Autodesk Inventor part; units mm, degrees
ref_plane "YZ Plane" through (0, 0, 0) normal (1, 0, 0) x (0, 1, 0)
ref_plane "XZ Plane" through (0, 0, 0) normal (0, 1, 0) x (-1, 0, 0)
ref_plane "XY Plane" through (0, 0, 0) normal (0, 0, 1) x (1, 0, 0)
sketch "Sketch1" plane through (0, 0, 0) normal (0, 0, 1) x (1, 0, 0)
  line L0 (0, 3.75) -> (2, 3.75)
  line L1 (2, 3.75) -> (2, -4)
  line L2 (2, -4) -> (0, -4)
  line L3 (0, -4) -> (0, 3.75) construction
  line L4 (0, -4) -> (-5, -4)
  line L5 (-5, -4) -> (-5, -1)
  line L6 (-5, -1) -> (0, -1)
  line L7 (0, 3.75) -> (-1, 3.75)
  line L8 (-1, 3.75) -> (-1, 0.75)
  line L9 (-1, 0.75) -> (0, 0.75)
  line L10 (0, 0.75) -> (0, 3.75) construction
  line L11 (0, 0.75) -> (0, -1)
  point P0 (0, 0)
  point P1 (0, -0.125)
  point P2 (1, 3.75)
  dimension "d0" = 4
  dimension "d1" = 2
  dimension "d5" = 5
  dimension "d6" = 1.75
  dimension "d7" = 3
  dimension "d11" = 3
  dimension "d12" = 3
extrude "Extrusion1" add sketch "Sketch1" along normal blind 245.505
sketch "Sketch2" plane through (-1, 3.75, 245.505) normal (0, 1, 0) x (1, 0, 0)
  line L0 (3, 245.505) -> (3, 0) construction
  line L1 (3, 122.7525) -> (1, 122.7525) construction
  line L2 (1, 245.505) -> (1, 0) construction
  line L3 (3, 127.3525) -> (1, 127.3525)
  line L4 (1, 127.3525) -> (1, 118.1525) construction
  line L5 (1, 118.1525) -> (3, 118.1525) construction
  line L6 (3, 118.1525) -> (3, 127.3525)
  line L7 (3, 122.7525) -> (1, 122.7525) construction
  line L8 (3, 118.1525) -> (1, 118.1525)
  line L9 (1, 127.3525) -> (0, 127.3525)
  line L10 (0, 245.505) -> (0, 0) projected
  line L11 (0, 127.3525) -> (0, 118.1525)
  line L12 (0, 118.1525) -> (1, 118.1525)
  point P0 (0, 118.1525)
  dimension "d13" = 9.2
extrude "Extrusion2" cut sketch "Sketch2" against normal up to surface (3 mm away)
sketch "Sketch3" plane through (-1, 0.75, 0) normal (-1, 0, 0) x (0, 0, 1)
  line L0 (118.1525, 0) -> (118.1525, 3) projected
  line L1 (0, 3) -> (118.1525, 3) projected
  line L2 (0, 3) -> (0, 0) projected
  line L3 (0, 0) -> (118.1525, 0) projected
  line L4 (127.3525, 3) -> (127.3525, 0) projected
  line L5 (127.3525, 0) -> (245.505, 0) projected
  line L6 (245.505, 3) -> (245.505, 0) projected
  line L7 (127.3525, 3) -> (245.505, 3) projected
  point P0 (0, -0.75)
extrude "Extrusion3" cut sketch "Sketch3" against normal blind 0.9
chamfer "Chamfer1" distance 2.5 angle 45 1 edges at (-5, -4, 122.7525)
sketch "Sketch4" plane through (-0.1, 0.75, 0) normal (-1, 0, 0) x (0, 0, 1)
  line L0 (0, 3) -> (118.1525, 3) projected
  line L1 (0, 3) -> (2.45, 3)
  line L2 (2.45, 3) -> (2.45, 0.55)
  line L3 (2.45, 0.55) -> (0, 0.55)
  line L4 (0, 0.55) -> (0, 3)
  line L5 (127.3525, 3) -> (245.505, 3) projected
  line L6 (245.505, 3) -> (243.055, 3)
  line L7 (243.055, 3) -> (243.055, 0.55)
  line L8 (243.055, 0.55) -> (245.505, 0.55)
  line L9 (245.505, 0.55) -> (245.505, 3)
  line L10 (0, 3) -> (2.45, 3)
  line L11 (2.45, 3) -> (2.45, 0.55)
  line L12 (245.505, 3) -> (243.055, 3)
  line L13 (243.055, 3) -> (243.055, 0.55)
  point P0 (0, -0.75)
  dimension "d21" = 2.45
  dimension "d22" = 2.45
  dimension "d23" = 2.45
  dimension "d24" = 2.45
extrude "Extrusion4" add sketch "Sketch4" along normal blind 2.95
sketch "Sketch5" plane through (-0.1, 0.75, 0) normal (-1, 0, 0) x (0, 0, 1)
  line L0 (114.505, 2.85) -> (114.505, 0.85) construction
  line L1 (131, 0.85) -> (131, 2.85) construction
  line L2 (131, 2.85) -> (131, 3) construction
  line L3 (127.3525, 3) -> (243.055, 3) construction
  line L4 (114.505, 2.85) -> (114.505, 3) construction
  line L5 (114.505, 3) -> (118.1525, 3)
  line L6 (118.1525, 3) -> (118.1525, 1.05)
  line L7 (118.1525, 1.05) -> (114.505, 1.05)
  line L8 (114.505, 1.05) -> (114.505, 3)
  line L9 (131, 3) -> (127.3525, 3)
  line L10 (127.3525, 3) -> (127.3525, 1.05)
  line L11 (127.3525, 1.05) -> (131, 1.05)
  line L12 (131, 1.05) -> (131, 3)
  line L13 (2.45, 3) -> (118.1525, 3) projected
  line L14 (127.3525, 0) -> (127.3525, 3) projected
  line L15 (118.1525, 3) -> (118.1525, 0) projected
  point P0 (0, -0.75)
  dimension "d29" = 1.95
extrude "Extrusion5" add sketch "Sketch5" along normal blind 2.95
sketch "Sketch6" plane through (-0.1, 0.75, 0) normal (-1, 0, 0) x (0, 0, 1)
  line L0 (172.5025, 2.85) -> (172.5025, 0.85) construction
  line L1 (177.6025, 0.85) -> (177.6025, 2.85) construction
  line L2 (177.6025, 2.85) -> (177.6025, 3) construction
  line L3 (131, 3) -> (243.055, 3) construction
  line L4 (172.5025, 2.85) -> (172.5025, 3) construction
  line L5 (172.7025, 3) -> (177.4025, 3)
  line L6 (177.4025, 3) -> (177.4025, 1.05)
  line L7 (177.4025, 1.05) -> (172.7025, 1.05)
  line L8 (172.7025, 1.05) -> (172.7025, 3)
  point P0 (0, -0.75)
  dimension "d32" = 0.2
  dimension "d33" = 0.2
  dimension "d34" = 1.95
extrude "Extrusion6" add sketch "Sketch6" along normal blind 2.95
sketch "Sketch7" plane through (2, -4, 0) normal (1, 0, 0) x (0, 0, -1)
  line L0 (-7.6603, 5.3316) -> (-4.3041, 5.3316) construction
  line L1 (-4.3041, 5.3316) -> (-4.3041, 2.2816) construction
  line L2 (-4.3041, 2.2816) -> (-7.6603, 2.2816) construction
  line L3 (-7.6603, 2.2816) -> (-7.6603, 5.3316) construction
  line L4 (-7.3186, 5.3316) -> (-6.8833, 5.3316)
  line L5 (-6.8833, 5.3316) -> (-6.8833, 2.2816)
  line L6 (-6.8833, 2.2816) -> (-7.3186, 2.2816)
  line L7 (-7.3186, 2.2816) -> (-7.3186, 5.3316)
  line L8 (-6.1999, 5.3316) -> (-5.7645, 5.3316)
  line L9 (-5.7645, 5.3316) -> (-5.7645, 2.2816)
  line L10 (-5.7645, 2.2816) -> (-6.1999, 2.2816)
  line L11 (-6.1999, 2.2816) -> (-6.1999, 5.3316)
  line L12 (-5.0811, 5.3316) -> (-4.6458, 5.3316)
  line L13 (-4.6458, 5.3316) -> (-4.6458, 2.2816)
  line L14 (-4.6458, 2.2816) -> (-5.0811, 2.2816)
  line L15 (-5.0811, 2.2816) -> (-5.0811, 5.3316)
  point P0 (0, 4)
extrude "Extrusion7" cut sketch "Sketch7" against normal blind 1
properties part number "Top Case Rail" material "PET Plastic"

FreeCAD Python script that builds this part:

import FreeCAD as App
import Part
import Sketcher
from FreeCAD import Vector


def edges_at(feature, points):
    """Names of the edges that pass closest to the given points."""
    edges = feature.Shape.Edges
    near = lambda p: min(range(len(edges)), key=lambda i: edges[i].distToShape(Part.Vertex(*p))[0])
    return sorted({f"Edge{near(p) + 1}" for p in points})

doc = App.newDocument("Part")
body = doc.addObject("PartDesign::Body", "Body")

sketch1 = body.newObject("Sketcher::SketchObject", "Sketch")
sketch1.AttachmentSupport = (doc.getObject("XY_Plane"), [""])
sketch1.MapMode = "FlatFace"
sketch1.addGeometry([
    Part.LineSegment(Vector(2, 3.75, 0), Vector(-1, 3.75, 0)),
    Part.LineSegment(Vector(-1, 3.75, 0), Vector(-1, 0.75, 0)),
    Part.LineSegment(Vector(-1, 0.75, 0), Vector(0, 0.75, 0)),
    Part.LineSegment(Vector(0, 0.75, 0), Vector(0, -1, 0)),
    Part.LineSegment(Vector(0, -1, 0), Vector(-5, -1, 0)),
    Part.LineSegment(Vector(-5, -1, 0), Vector(-5, -4, 0)),
    Part.LineSegment(Vector(-5, -4, 0), Vector(2, -4, 0)),
    Part.LineSegment(Vector(2, -4, 0), Vector(2, 3.75, 0)),
], False)
sketch1.addConstraint([
    Sketcher.Constraint("Coincident", 0, 2, 1, 1),
    Sketcher.Constraint("Coincident", 1, 2, 2, 1),
    Sketcher.Constraint("Coincident", 2, 2, 3, 1),
    Sketcher.Constraint("Coincident", 3, 2, 4, 1),
    Sketcher.Constraint("Coincident", 4, 2, 5, 1),
    Sketcher.Constraint("Coincident", 5, 2, 6, 1),
    Sketcher.Constraint("Coincident", 6, 2, 7, 1),
    Sketcher.Constraint("Coincident", 7, 2, 0, 1),
    Sketcher.Constraint("Horizontal", 0),
    Sketcher.Constraint("Vertical", 1),
    Sketcher.Constraint("Horizontal", 2),
    Sketcher.Constraint("Vertical", 3),
    Sketcher.Constraint("Horizontal", 4),
    Sketcher.Constraint("Vertical", 5),
    Sketcher.Constraint("Horizontal", 6),
    Sketcher.Constraint("Vertical", 7),
    Sketcher.Constraint("PointOnObject", 2, 2, -2),
    Sketcher.Constraint("Equal", 0, 1),
    Sketcher.Constraint("Equal", 1, 5),
    Sketcher.Constraint("DistanceX", 0, 2, 0, 1, 3.0),
    Sketcher.Constraint("DistanceX", 4, 2, 4, 1, 5.0),
    Sketcher.Constraint("DistanceY", 5, 2, -1, 1, 4.0),
    Sketcher.Constraint("DistanceX", -1, 1, 6, 2, 2.0),
    Sketcher.Constraint("DistanceY", 3, 2, 3, 1, 1.75),
])
pad1 = body.newObject("PartDesign::Pad", "Pad")
pad1.Profile = sketch1
pad1.Length = 245.505

sketch2 = body.newObject("Sketcher::SketchObject", "Sketch001")
sketch2.AttachmentSupport = (doc.getObject("XZ_Plane"), [""])
sketch2.MapMode = "FlatFace"
sketch2.AttachmentOffset = App.Placement(Vector(0, 0, -3.75), App.Rotation())
sketch2.addGeometry([
    Part.LineSegment(Vector(2, 127.3525, 0), Vector(2, 118.1525, 0)),
    Part.LineSegment(Vector(2, 118.1525, 0), Vector(-1, 118.1525, 0)),
    Part.LineSegment(Vector(-1, 118.1525, 0), Vector(-1, 127.3525, 0)),
    Part.LineSegment(Vector(-1, 127.3525, 0), Vector(2, 127.3525, 0)),
], False)
sketch2.addConstraint([
    Sketcher.Constraint("Coincident", 0, 2, 1, 1),
    Sketcher.Constraint("Coincident", 1, 2, 2, 1),
    Sketcher.Constraint("Coincident", 2, 2, 3, 1),
    Sketcher.Constraint("Coincident", 3, 2, 0, 1),
    Sketcher.Constraint("Vertical", 0),
    Sketcher.Constraint("Horizontal", 1),
    Sketcher.Constraint("Vertical", 2),
    Sketcher.Constraint("Horizontal", 3),
    Sketcher.Constraint("DistanceY", 0, 2, 0, 1, 9.2),
    Sketcher.Constraint("DistanceX", 1, 2, 1, 1, 3.0),
    Sketcher.Constraint("DistanceX", -1, 1, 0, 2, 2.0),
    Sketcher.Constraint("DistanceY", -1, 1, 0, 2, 118.1525),
])
pocket1 = body.newObject("PartDesign::Pocket", "Pocket")
pocket1.Profile = sketch2
pocket1.Length = 3
pocket1.Reversed = True

sketch3 = body.newObject("Sketcher::SketchObject", "Sketch002")
sketch3.AttachmentSupport = (doc.getObject("YZ_Plane"), [""])
sketch3.MapMode = "FlatFace"
sketch3.AttachmentOffset = App.Placement(Vector(0, 0, -1), App.Rotation())
sketch3.addGeometry([
    Part.LineSegment(Vector(0.75, 0, 0), Vector(0.75, 118.1525, 0)),
    Part.LineSegment(Vector(0.75, 118.1525, 0), Vector(3.75, 118.1525, 0)),
    Part.LineSegment(Vector(3.75, 118.1525, 0), Vector(3.75, 0, 0)),
    Part.LineSegment(Vector(3.75, 0, 0), Vector(0.75, 0, 0)),
    Part.LineSegment(Vector(3.75, 245.505, 0), Vector(3.75, 127.3525, 0)),
    Part.LineSegment(Vector(3.75, 127.3525, 0), Vector(0.75, 127.3525, 0)),
    Part.LineSegment(Vector(0.75, 127.3525, 0), Vector(0.75, 245.505, 0)),
    Part.LineSegment(Vector(0.75, 245.505, 0), Vector(3.75, 245.505, 0)),
], False)
sketch3.addConstraint([
    Sketcher.Constraint("Coincident", 0, 2, 1, 1),
    Sketcher.Constraint("Coincident", 1, 2, 2, 1),
    Sketcher.Constraint("Coincident", 2, 2, 3, 1),
    Sketcher.Constraint("Coincident", 3, 2, 0, 1),
    Sketcher.Constraint("Coincident", 4, 2, 5, 1),
    Sketcher.Constraint("Coincident", 5, 2, 6, 1),
    Sketcher.Constraint("Coincident", 6, 2, 7, 1),
    Sketcher.Constraint("Coincident", 7, 2, 4, 1),
    Sketcher.Constraint("Vertical", 0),
    Sketcher.Constraint("Horizontal", 1),
    Sketcher.Constraint("Vertical", 2),
    Sketcher.Constraint("Horizontal", 3),
    Sketcher.Constraint("Vertical", 4),
    Sketcher.Constraint("Horizontal", 5),
    Sketcher.Constraint("Vertical", 6),
    Sketcher.Constraint("Horizontal", 7),
    Sketcher.Constraint("PointOnObject", 2, 2, -1),
    Sketcher.Constraint("Vertical", 2, 2, 4, 2),
    Sketcher.Constraint("Vertical", 3, 2, 5, 2),
    Sketcher.Constraint("Equal", 2, 4),
    Sketcher.Constraint("DistanceX", 1, 1, 1, 2, 3.0),
    Sketcher.Constraint("DistanceY", 1, 2, 4, 2, 9.2),
    Sketcher.Constraint("DistanceX", -1, 1, 0, 2, 0.75),
    Sketcher.Constraint("DistanceY", 0, 1, 0, 2, 118.1525),
])
pocket2 = body.newObject("PartDesign::Pocket", "Pocket001")
pocket2.Profile = sketch3
pocket2.Length = 0.9
pocket2.Reversed = True
doc.recompute()

chamfer = body.newObject("PartDesign::Chamfer", "Chamfer")
chamfer.Base = (pocket2, edges_at(pocket2, [(-5, -4, 122.752)]))
chamfer.Size = 2.5

sketch4 = body.newObject("Sketcher::SketchObject", "Sketch003")
sketch4.AttachmentSupport = (doc.getObject("YZ_Plane"), [""])
sketch4.MapMode = "FlatFace"
sketch4.AttachmentOffset = App.Placement(Vector(0, 0, -0.1), App.Rotation())
sketch4.addGeometry([
    Part.LineSegment(Vector(3.75, 2.45, 0), Vector(3.75, 0, 0)),
    Part.LineSegment(Vector(3.75, 0, 0), Vector(1.3, 0, 0)),
    Part.LineSegment(Vector(1.3, 0, 0), Vector(1.3, 2.45, 0)),
    Part.LineSegment(Vector(1.3, 2.45, 0), Vector(3.75, 2.45, 0)),
    Part.LineSegment(Vector(3.75, 245.505, 0), Vector(3.75, 243.055, 0)),
    Part.LineSegment(Vector(3.75, 243.055, 0), Vector(1.3, 243.055, 0)),
    Part.LineSegment(Vector(1.3, 243.055, 0), Vector(1.3, 245.505, 0)),
    Part.LineSegment(Vector(1.3, 245.505, 0), Vector(3.75, 245.505, 0)),
], False)
sketch4.addConstraint([
    Sketcher.Constraint("Coincident", 0, 2, 1, 1),
    Sketcher.Constraint("Coincident", 1, 2, 2, 1),
    Sketcher.Constraint("Coincident", 2, 2, 3, 1),
    Sketcher.Constraint("Coincident", 3, 2, 0, 1),
    Sketcher.Constraint("Coincident", 4, 2, 5, 1),
    Sketcher.Constraint("Coincident", 5, 2, 6, 1),
    Sketcher.Constraint("Coincident", 6, 2, 7, 1),
    Sketcher.Constraint("Coincident", 7, 2, 4, 1),
    Sketcher.Constraint("Vertical", 0),
    Sketcher.Constraint("Horizontal", 1),
    Sketcher.Constraint("Vertical", 2),
    Sketcher.Constraint("Horizontal", 3),
    Sketcher.Constraint("Vertical", 4),
    Sketcher.Constraint("Horizontal", 5),
    Sketcher.Constraint("Vertical", 6),
    Sketcher.Constraint("Horizontal", 7),
    Sketcher.Constraint("PointOnObject", 0, 2, -1),
    Sketcher.Constraint("Vertical", 3, 2, 4, 2),
    Sketcher.Constraint("Vertical", 2, 2, 5, 2),
    Sketcher.Constraint("Equal", 7, 0),
    Sketcher.Constraint("Equal", 2, 4),
    Sketcher.Constraint("DistanceX", 1, 2, 1, 1, 2.45),
    Sketcher.Constraint("DistanceX", -1, 1, 1, 2, 1.3),
    Sketcher.Constraint("DistanceY", -1, 1, 4, 2, 243.055),
])
pad2 = body.newObject("PartDesign::Pad", "Pad001")
pad2.Profile = sketch4
pad2.Length = 2.95
pad2.Reversed = True

sketch5 = body.newObject("Sketcher::SketchObject", "Sketch004")
sketch5.AttachmentSupport = (doc.getObject("YZ_Plane"), [""])
sketch5.MapMode = "FlatFace"
sketch5.AttachmentOffset = App.Placement(Vector(0, 0, -0.1), App.Rotation())
sketch5.addGeometry([
    Part.LineSegment(Vector(3.75, 118.1525, 0), Vector(3.75, 114.505, 0)),
    Part.LineSegment(Vector(3.75, 114.505, 0), Vector(1.8, 114.505, 0)),
    Part.LineSegment(Vector(1.8, 114.505, 0), Vector(1.8, 118.1525, 0)),
    Part.LineSegment(Vector(1.8, 118.1525, 0), Vector(3.75, 118.1525, 0)),
    Part.LineSegment(Vector(1.8, 131, 0), Vector(3.75, 131, 0)),
    Part.LineSegment(Vector(3.75, 131, 0), Vector(3.75, 127.3525, 0)),
    Part.LineSegment(Vector(3.75, 127.3525, 0), Vector(1.8, 127.3525, 0)),
    Part.LineSegment(Vector(1.8, 127.3525, 0), Vector(1.8, 131, 0)),
], False)
sketch5.addConstraint([
    Sketcher.Constraint("Coincident", 0, 2, 1, 1),
    Sketcher.Constraint("Coincident", 1, 2, 2, 1),
    Sketcher.Constraint("Coincident", 2, 2, 3, 1),
    Sketcher.Constraint("Coincident", 3, 2, 0, 1),
    Sketcher.Constraint("Coincident", 4, 2, 5, 1),
    Sketcher.Constraint("Coincident", 5, 2, 6, 1),
    Sketcher.Constraint("Coincident", 6, 2, 7, 1),
    Sketcher.Constraint("Coincident", 7, 2, 4, 1),
    Sketcher.Constraint("Vertical", 0),
    Sketcher.Constraint("Horizontal", 1),
    Sketcher.Constraint("Vertical", 2),
    Sketcher.Constraint("Horizontal", 3),
    Sketcher.Constraint("Horizontal", 4),
    Sketcher.Constraint("Vertical", 5),
    Sketcher.Constraint("Horizontal", 6),
    Sketcher.Constraint("Vertical", 7),
    Sketcher.Constraint("Vertical", 3, 2, 4, 2),
    Sketcher.Constraint("Vertical", 2, 2, 6, 2),
    Sketcher.Constraint("Equal", 2, 5),
    Sketcher.Constraint("DistanceX", 1, 2, 1, 1, 1.95),
    Sketcher.Constraint("DistanceY", -1, 1, 4, 2, 131.0),
    Sketcher.Constraint("DistanceX", -1, 1, 1, 2, 1.8),
    Sketcher.Constraint("DistanceY", 3, 2, 5, 2, 9.2),
    Sketcher.Constraint("DistanceY", 0, 2, 0, 1, 3.6475),
])
pad3 = body.newObject("PartDesign::Pad", "Pad002")
pad3.Profile = sketch5
pad3.Length = 2.95
pad3.Reversed = True

sketch6 = body.newObject("Sketcher::SketchObject", "Sketch005")
sketch6.AttachmentSupport = (doc.getObject("YZ_Plane"), [""])
sketch6.MapMode = "FlatFace"
sketch6.AttachmentOffset = App.Placement(Vector(0, 0, -0.1), App.Rotation())
sketch6.addGeometry([
    Part.LineSegment(Vector(3.75, 177.4025, 0), Vector(3.75, 172.7025, 0)),
    Part.LineSegment(Vector(3.75, 172.7025, 0), Vector(1.8, 172.7025, 0)),
    Part.LineSegment(Vector(1.8, 172.7025, 0), Vector(1.8, 177.4025, 0)),
    Part.LineSegment(Vector(1.8, 177.4025, 0), Vector(3.75, 177.4025, 0)),
], False)
sketch6.addConstraint([
    Sketcher.Constraint("Coincident", 0, 2, 1, 1),
    Sketcher.Constraint("Coincident", 1, 2, 2, 1),
    Sketcher.Constraint("Coincident", 2, 2, 3, 1),
    Sketcher.Constraint("Coincident", 3, 2, 0, 1),
    Sketcher.Constraint("Vertical", 0),
    Sketcher.Constraint("Horizontal", 1),
    Sketcher.Constraint("Vertical", 2),
    Sketcher.Constraint("Horizontal", 3),
    Sketcher.Constraint("DistanceX", 1, 2, 1, 1, 1.95),
    Sketcher.Constraint("DistanceY", 0, 2, 0, 1, 4.7),
    Sketcher.Constraint("DistanceX", -1, 1, 1, 2, 1.8),
    Sketcher.Constraint("DistanceY", -1, 1, 0, 2, 172.7025),
])
pad4 = body.newObject("PartDesign::Pad", "Pad003")
pad4.Profile = sketch6
pad4.Length = 2.95
pad4.Reversed = True

sketch7 = body.newObject("Sketcher::SketchObject", "Sketch006")
sketch7.AttachmentSupport = (doc.getObject("YZ_Plane"), [""])
sketch7.MapMode = "FlatFace"
sketch7.AttachmentOffset = App.Placement(Vector(0, 0, 2), App.Rotation())
sketch7.addGeometry([
    Part.LineSegment(Vector(1.3316, 6.8833, 0), Vector(1.3316, 7.3186, 0)),
    Part.LineSegment(Vector(1.3316, 7.3186, 0), Vector(-1.7184, 7.3186, 0)),
    Part.LineSegment(Vector(-1.7184, 7.3186, 0), Vector(-1.7184, 6.8833, 0)),
    Part.LineSegment(Vector(-1.7184, 6.8833, 0), Vector(1.3316, 6.8833, 0)),
    Part.LineSegment(Vector(1.3316, 5.7645, 0), Vector(1.3316, 6.1999, 0)),
    Part.LineSegment(Vector(1.3316, 6.1999, 0), Vector(-1.7184, 6.1999, 0)),
    Part.LineSegment(Vector(-1.7184, 6.1999, 0), Vector(-1.7184, 5.7645, 0)),
    Part.LineSegment(Vector(-1.7184, 5.7645, 0), Vector(1.3316, 5.7645, 0)),
    Part.LineSegment(Vector(1.3316, 4.6458, 0), Vector(1.3316, 5.0811, 0)),
    Part.LineSegment(Vector(1.3316, 5.0811, 0), Vector(-1.7184, 5.0811, 0)),
    Part.LineSegment(Vector(-1.7184, 5.0811, 0), Vector(-1.7184, 4.6458, 0)),
    Part.LineSegment(Vector(-1.7184, 4.6458, 0), Vector(1.3316, 4.6458, 0)),
], False)
sketch7.addConstraint([
    Sketcher.Constraint("Coincident", 0, 2, 1, 1),
    Sketcher.Constraint("Coincident", 1, 2, 2, 1),
    Sketcher.Constraint("Coincident", 2, 2, 3, 1),
    Sketcher.Constraint("Coincident", 3, 2, 0, 1),
    Sketcher.Constraint("Coincident", 4, 2, 5, 1),
    Sketcher.Constraint("Coincident", 5, 2, 6, 1),
    Sketcher.Constraint("Coincident", 6, 2, 7, 1),
    Sketcher.Constraint("Coincident", 7, 2, 4, 1),
    Sketcher.Constraint("Coincident", 8, 2, 9, 1),
    Sketcher.Constraint("Coincident", 9, 2, 10, 1),
    Sketcher.Constraint("Coincident", 10, 2, 11, 1),
    Sketcher.Constraint("Coincident", 11, 2, 8, 1),
    Sketcher.Constraint("Vertical", 0),
    Sketcher.Constraint("Horizontal", 1),
    Sketcher.Constraint("Vertical", 2),
    Sketcher.Constraint("Horizontal", 3),
    Sketcher.Constraint("Vertical", 4),
    Sketcher.Constraint("Horizontal", 5),
    Sketcher.Constraint("Vertical", 6),
    Sketcher.Constraint("Horizontal", 7),
    Sketcher.Constraint("Vertical", 8),
    Sketcher.Constraint("Horizontal", 9),
    Sketcher.Constraint("Vertical", 10),
    Sketcher.Constraint("Horizontal", 11),
    Sketcher.Constraint("Vertical", 3, 2, 4, 2),
    Sketcher.Constraint("Vertical", 2, 2, 5, 2),
    Sketcher.Constraint("Vertical", 7, 2, 8, 2),
    Sketcher.Constraint("Vertical", 6, 2, 9, 2),
    Sketcher.Constraint("Equal", 2, 4),
    Sketcher.Constraint("Equal", 6, 8),
    Sketcher.Constraint("DistanceX", 1, 2, 1, 1, 3.05),
    Sketcher.Constraint("DistanceY", -1, 1, 4, 2, 6.2),
    Sketcher.Constraint("DistanceY", 0, 1, 0, 2, 0.4353),
    Sketcher.Constraint("DistanceY", -1, 1, 8, 2, 5.081),
    Sketcher.Constraint("DistanceY", 6, 2, 1, 2, 1.554),
    Sketcher.Constraint("DistanceX", -1, 1, 0, 2, 1.3316),
])
pocket3 = body.newObject("PartDesign::Pocket", "Pocket002")
pocket3.Profile = sketch7
pocket3.Length = 1

doc.recompute()
